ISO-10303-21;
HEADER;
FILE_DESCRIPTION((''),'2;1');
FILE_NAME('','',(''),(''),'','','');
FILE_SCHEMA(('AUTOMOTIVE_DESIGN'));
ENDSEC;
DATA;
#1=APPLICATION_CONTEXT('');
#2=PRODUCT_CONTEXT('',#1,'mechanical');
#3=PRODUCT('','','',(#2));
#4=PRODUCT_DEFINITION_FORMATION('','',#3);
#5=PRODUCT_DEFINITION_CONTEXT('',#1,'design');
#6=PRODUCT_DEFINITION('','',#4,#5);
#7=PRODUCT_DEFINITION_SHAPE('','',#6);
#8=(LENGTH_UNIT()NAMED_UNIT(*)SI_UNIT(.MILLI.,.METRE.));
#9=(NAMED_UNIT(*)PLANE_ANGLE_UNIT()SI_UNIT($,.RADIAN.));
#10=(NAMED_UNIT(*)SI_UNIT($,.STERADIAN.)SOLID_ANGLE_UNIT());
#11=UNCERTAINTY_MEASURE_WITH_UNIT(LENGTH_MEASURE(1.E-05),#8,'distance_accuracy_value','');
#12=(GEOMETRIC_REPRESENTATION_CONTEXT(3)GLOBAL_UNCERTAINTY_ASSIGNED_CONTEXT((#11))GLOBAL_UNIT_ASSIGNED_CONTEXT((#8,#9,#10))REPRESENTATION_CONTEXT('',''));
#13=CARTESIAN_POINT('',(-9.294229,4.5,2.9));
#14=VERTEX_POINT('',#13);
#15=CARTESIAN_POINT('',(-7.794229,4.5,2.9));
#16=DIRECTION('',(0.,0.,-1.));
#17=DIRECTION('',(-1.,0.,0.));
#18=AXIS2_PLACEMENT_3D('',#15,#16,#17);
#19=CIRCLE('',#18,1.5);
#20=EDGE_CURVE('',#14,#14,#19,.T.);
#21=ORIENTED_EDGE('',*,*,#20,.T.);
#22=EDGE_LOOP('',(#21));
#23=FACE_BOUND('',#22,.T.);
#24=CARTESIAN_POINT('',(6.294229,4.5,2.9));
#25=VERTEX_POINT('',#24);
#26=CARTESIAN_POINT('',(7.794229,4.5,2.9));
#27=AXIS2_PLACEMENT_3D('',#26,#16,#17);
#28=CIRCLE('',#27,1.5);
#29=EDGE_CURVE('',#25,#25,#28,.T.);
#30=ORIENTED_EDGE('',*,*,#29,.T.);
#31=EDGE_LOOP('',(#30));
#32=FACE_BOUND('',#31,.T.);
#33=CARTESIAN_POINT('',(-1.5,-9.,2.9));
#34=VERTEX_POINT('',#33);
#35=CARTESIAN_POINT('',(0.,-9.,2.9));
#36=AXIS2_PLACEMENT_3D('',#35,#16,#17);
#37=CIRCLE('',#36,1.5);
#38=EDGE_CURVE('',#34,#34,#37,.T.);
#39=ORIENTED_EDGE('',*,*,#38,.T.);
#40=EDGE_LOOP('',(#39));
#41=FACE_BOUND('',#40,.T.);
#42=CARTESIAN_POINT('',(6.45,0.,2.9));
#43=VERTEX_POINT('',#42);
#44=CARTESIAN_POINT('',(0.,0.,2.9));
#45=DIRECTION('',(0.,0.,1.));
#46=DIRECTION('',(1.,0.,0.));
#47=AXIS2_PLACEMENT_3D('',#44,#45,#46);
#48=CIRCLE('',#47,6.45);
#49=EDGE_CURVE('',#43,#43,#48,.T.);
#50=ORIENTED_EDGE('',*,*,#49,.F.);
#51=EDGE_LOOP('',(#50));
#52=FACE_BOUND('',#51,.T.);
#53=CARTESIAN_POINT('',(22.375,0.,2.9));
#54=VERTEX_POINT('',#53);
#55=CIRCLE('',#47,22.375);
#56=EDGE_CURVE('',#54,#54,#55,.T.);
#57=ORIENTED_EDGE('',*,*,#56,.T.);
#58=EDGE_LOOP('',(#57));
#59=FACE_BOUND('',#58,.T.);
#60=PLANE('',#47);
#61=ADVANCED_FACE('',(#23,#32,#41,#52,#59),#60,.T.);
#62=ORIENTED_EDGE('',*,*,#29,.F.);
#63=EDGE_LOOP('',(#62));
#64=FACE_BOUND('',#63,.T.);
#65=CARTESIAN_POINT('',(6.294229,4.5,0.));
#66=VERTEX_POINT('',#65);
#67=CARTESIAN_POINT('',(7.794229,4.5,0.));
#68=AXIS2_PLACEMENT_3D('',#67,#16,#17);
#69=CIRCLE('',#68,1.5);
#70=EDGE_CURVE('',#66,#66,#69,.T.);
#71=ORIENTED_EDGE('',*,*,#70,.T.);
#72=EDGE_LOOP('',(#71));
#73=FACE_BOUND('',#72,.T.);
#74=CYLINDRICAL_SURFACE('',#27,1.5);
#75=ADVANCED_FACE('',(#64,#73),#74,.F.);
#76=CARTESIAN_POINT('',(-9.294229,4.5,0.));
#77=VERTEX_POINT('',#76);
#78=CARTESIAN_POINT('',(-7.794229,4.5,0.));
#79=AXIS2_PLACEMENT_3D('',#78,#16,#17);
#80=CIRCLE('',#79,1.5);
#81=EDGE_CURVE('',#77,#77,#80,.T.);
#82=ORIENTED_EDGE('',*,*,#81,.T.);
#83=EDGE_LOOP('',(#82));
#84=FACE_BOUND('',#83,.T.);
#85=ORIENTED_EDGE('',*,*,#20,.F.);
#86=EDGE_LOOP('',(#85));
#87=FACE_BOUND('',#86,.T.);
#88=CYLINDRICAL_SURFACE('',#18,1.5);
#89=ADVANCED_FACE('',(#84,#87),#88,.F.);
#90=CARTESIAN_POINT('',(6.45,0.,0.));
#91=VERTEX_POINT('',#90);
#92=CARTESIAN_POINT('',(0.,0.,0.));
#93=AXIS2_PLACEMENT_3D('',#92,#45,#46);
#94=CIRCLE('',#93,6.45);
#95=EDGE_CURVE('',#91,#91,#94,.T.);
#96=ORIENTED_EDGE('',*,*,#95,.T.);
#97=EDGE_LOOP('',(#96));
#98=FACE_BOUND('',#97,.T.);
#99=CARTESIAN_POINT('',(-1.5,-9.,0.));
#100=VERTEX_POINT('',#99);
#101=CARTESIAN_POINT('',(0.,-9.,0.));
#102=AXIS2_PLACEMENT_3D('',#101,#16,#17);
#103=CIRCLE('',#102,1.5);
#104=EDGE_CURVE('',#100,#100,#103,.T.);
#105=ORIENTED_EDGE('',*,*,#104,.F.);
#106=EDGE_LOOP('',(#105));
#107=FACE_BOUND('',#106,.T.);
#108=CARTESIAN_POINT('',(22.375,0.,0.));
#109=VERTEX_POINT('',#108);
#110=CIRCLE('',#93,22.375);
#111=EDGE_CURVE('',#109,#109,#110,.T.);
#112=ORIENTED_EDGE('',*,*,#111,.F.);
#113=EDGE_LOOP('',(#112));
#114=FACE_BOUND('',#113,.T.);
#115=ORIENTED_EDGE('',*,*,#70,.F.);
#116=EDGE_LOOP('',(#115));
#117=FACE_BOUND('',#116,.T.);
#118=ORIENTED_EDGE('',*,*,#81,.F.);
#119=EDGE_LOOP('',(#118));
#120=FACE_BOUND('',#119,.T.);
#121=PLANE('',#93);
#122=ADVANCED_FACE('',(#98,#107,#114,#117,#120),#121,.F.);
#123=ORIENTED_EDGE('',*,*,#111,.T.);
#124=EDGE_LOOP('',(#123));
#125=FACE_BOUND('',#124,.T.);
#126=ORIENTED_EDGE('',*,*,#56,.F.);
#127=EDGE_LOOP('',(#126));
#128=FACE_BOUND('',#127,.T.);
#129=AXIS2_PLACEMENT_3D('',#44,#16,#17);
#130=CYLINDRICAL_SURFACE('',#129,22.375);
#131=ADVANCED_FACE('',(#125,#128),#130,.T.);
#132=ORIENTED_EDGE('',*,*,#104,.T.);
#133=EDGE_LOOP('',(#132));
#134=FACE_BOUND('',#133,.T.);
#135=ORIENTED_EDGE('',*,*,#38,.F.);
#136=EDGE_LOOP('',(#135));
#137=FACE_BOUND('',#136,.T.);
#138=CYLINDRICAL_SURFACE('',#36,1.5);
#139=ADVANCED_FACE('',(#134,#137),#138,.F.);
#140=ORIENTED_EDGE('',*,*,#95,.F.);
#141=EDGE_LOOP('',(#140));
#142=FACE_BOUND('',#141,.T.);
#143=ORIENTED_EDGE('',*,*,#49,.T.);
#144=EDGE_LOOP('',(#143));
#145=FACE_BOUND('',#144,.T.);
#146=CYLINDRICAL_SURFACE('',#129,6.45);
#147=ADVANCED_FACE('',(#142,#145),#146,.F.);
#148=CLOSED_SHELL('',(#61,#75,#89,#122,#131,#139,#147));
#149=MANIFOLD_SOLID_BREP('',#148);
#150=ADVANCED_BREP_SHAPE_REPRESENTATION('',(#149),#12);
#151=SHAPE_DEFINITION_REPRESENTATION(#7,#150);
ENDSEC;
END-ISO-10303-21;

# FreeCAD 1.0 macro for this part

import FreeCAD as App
import Part
import Sketcher
Q = App.Units.Quantity

doc = App.newDocument("Part")
body = doc.addObject("PartDesign::Body", "Body")

sketch1 = body.newObject("Sketcher::SketchObject", "Sketch")
sketch1.AttachmentSupport = (doc.getObject("XY_Plane"), [""])
sketch1.MapMode = "FlatFace"
sketch1.addGeometry([
    Part.Circle(App.Vector(0, 0, 0), App.Vector(0, 0, 1), 22),
    Part.Circle(App.Vector(0, 0, 0), App.Vector(0, 0, 1), 6),
], False)
sketch1.addConstraint([
    Sketcher.Constraint("Coincident", 0, 3, -1, 1),
    Sketcher.Constraint("Coincident", 1, 3, -1, 1),
    Sketcher.Constraint("Diameter", 1, Q("12.9 mm")),
    Sketcher.Constraint("Diameter", 0, Q("44.75 mm")),
])
pad1 = body.newObject("PartDesign::Pad", "Pad")
pad1.Profile = sketch1
pad1.Length = 2.9

sketch2 = body.newObject("Sketcher::SketchObject", "Sketch001")
sketch2.AttachmentSupport = (doc.getObject("XY_Plane"), [""])
sketch2.MapMode = "FlatFace"
sketch2.addGeometry([
    Part.Circle(App.Vector(-7.8, 4.5, 0), App.Vector(0, 0, 1), 1.5),
    Part.Circle(App.Vector(7.8, 4.5, 0), App.Vector(0, 0, 1), 1.5),
    Part.Circle(App.Vector(0, -9, 0), App.Vector(0, 0, 1), 1.5),
], False)
sketch2.addConstraint([
    Sketcher.Constraint("Equal", 0, 1),
    Sketcher.Constraint("Equal", 1, 2),
    Sketcher.Constraint("Symmetric", 0, 3, 1, 3, -2),
    Sketcher.Constraint("PointOnObject", 2, 3, -2),
    Sketcher.Constraint("Diameter", 0, Q("3 mm")),
    Sketcher.Constraint("DistanceY", 2, 3, -1, 1, Q("9 mm")),
    Sketcher.Constraint("DistanceY", -1, 1, 0, 3, Q("4.5 mm")),
    Sketcher.Constraint("DistanceX", 0, 3, -1, 1, Q("7.794229 mm")),
])
pocket1 = body.newObject("PartDesign::Pocket", "Pocket")
pocket1.Profile = sketch2
pocket1.Type = "ThroughAll"
pocket1.Reversed = True

doc.recompute()
